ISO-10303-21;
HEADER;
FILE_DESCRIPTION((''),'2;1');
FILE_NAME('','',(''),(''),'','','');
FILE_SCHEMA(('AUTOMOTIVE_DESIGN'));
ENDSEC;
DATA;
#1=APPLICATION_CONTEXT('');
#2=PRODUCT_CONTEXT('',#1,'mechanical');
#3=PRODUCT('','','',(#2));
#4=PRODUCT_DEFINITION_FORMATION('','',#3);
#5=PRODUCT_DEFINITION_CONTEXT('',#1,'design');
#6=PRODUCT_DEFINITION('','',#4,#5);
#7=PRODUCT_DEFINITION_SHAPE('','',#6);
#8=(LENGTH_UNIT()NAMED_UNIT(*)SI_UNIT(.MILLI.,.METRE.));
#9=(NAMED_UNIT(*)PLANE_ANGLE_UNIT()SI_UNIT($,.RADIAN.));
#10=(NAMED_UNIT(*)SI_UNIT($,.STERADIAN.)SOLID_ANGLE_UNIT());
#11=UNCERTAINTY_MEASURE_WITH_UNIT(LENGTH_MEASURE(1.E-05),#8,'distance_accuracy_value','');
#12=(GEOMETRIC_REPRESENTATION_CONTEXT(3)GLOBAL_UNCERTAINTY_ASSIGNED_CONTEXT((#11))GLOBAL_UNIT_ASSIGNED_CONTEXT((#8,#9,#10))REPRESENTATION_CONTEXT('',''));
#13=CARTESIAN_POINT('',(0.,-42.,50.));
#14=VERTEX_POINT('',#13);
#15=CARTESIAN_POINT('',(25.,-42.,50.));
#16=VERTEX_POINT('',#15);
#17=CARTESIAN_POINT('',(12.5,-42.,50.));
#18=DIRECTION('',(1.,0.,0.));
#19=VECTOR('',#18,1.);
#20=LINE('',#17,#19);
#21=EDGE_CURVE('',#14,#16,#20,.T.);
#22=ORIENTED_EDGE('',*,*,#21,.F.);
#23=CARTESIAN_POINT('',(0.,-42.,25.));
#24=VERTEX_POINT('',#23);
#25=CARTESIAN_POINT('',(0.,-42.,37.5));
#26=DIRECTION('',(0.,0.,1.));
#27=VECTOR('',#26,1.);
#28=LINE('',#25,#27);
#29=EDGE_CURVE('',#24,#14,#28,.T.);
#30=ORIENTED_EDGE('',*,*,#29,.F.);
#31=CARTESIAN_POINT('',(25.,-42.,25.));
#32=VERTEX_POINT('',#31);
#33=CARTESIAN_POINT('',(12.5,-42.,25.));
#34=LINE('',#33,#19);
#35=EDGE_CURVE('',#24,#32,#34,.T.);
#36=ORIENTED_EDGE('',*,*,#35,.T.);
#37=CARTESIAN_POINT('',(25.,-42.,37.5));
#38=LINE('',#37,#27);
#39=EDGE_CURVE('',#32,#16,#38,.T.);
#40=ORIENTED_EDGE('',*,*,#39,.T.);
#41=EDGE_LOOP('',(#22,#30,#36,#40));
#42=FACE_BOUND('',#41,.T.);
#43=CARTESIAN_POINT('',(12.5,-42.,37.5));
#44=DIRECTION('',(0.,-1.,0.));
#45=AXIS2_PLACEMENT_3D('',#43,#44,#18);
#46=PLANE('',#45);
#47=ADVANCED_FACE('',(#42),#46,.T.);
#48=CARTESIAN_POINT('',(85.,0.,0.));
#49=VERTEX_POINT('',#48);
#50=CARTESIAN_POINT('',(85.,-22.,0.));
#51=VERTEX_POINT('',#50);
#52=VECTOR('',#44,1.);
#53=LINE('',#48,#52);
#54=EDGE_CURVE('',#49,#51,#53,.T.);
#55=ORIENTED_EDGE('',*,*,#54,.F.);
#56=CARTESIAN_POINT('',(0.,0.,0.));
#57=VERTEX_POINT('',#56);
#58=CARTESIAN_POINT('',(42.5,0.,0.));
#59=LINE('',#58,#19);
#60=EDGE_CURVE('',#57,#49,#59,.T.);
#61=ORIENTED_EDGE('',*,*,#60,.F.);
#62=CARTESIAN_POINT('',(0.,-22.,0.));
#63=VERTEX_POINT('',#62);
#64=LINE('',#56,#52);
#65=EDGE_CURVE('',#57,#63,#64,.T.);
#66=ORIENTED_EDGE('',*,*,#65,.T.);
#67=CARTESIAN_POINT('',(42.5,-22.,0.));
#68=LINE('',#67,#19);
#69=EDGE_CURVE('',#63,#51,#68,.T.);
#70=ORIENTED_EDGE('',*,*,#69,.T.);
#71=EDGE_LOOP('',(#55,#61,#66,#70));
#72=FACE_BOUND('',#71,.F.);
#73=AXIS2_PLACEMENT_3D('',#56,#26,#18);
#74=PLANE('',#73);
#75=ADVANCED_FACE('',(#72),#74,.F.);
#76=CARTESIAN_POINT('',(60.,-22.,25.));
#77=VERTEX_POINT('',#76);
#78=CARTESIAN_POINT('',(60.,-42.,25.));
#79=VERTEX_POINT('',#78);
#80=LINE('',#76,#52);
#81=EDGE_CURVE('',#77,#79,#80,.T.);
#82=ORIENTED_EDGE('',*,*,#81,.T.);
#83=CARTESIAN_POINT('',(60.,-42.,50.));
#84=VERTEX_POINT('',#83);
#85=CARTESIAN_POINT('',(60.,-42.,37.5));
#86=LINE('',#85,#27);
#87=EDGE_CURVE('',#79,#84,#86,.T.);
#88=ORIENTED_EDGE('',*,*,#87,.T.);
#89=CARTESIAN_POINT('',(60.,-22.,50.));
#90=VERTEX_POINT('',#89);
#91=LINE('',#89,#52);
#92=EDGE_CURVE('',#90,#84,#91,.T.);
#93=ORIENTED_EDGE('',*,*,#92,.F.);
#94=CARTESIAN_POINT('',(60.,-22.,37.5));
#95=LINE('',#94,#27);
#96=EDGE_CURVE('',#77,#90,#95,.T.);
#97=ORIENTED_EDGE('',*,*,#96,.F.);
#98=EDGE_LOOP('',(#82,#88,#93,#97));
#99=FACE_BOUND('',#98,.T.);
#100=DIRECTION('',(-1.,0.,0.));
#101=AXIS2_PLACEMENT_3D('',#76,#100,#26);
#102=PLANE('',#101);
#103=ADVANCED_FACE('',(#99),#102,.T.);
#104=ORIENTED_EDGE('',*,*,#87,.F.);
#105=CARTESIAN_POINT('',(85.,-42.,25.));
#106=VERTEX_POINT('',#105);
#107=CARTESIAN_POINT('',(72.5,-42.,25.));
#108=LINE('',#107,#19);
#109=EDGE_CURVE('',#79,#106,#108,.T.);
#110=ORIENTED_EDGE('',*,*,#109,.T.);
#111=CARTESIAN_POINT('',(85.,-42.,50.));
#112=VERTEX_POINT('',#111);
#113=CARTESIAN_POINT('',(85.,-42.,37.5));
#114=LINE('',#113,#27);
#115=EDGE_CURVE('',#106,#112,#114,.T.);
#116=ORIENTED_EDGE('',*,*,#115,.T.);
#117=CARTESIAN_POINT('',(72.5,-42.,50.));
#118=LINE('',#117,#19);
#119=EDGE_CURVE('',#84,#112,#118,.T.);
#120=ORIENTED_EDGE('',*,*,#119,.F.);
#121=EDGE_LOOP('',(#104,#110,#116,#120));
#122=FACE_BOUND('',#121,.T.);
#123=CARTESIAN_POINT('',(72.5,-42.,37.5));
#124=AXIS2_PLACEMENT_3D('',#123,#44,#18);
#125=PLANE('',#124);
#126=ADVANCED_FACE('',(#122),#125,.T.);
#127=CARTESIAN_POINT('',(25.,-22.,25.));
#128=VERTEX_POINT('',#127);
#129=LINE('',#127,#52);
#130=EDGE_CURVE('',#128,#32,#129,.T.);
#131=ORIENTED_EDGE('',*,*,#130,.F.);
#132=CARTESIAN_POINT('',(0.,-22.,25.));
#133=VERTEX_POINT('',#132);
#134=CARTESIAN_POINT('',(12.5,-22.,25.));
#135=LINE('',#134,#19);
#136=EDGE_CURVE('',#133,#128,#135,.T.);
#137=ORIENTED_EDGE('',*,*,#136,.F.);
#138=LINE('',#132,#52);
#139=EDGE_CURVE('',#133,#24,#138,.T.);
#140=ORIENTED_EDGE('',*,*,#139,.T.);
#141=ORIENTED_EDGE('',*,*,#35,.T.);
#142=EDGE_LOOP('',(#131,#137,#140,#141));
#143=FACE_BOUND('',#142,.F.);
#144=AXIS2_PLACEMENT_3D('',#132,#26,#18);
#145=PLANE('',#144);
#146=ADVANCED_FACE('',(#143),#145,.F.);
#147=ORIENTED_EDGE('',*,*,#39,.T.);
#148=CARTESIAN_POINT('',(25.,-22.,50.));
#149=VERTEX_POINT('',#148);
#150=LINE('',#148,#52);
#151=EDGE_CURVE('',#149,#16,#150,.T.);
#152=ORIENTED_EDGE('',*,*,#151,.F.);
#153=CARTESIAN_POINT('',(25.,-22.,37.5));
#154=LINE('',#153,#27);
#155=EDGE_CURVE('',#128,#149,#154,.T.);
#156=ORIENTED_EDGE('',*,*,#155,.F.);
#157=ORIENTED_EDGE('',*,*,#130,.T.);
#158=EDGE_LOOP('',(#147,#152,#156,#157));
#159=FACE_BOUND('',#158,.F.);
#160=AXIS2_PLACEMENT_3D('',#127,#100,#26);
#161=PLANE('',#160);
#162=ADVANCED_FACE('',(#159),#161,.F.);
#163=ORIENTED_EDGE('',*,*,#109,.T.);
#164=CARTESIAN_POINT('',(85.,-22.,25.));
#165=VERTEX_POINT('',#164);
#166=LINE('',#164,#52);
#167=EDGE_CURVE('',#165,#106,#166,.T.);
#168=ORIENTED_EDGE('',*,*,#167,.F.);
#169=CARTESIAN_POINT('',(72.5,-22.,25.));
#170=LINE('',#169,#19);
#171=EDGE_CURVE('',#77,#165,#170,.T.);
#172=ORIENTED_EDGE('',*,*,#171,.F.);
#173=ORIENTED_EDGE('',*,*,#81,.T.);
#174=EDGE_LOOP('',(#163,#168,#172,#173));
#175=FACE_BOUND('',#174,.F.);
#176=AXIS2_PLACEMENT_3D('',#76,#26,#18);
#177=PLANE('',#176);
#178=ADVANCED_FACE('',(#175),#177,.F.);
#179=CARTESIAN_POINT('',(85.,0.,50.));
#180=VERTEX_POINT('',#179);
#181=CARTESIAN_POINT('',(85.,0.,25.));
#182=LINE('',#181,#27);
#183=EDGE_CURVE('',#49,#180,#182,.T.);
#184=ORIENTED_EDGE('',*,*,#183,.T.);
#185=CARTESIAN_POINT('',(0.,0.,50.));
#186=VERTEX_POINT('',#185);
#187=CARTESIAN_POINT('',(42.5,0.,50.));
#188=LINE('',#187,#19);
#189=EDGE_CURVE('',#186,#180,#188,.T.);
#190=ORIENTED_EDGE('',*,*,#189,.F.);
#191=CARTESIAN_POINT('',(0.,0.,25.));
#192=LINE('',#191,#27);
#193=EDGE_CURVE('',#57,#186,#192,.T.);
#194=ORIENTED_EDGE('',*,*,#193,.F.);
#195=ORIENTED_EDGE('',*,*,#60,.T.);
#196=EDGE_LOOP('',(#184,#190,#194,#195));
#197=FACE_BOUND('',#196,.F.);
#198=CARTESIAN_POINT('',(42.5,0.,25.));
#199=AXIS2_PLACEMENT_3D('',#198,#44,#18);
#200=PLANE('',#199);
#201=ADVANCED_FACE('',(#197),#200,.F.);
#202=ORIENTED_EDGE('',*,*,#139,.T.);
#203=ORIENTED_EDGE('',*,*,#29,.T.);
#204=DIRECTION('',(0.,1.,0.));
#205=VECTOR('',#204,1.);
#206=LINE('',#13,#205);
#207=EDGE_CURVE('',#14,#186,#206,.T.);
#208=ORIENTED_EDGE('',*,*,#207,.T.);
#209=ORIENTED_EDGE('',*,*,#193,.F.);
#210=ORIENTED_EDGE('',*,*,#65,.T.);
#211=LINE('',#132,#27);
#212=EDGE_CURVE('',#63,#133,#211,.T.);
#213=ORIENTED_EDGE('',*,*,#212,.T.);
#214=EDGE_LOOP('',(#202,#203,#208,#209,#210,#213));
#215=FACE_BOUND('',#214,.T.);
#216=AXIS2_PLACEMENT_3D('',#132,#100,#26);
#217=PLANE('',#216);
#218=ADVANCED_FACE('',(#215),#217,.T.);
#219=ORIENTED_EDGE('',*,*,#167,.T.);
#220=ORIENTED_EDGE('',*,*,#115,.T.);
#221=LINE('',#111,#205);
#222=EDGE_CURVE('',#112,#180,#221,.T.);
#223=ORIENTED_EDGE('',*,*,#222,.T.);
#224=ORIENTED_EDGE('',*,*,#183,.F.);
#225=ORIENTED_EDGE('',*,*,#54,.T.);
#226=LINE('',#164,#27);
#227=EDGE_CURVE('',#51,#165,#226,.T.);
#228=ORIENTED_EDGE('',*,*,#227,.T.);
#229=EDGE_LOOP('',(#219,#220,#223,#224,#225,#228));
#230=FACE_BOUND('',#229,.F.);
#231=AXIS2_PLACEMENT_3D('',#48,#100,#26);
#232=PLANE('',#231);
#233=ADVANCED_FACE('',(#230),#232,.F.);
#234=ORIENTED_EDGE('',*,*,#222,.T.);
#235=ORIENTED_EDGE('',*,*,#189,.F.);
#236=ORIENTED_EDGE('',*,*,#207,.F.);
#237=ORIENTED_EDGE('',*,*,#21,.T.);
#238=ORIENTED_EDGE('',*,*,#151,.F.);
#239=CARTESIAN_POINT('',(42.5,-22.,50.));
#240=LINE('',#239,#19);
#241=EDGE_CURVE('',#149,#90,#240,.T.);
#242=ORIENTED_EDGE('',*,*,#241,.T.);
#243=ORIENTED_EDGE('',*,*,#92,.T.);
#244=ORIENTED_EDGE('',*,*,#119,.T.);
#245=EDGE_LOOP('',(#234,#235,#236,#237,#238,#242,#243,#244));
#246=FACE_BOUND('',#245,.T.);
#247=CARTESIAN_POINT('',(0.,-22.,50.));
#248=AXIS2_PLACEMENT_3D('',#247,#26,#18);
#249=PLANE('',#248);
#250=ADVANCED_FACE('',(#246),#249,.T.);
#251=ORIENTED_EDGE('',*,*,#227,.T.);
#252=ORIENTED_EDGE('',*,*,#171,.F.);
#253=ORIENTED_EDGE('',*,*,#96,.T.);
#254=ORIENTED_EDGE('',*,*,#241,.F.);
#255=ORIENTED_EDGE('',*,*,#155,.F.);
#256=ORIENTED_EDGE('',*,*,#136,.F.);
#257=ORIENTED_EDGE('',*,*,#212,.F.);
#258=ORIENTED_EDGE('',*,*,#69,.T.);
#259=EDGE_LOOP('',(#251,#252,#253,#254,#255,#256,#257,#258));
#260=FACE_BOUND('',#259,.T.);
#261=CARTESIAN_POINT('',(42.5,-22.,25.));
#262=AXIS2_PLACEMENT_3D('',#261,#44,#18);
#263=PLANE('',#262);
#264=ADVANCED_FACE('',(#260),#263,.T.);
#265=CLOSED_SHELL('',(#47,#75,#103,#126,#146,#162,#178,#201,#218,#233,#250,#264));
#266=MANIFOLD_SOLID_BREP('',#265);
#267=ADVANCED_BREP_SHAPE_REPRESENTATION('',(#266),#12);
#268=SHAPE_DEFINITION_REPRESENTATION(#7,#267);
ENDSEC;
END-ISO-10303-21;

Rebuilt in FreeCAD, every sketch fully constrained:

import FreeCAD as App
import Part
import Sketcher
Q = App.Units.Quantity

doc = App.newDocument("Part")
params = doc.addObject("Spreadsheet::Sheet", "Params")
for row, (alias, value) in enumerate([
    ("sketch1_width", "85 mm"),
    ("sketch1_height", "50 mm"),
    ("pad1_length", "22 mm"),
    ("sketch2_width", "25 mm"),
    ("pad2_length", "20 mm"),
    ("sketch3_width", "25 mm"),
    ("pad3_length", "20 mm"),
], start=1):
    params.set(f"A{row}", alias)
    params.set(f"B{row}", "=" + value)
    params.setAlias(f"B{row}", alias)

body = doc.addObject("PartDesign::Body", "Body")

# Sketch on XZ plane
sketch1 = body.newObject("Sketcher::SketchObject", "Sketch")
sketch1.AttachmentSupport = (doc.getObject("XZ_Plane"), [""])
sketch1.MapMode = "FlatFace"
sketch1.addGeometry([
    Part.LineSegment(App.Vector(0, 50, 0), App.Vector(0, 0, 0)),
    Part.LineSegment(App.Vector(0, 0, 0), App.Vector(85, 0, 0)),
    Part.LineSegment(App.Vector(85, 0, 0), App.Vector(85, 50, 0)),
    Part.LineSegment(App.Vector(85, 50, 0), App.Vector(0, 50, 0)),
], False)
sketch1.addConstraint([
    Sketcher.Constraint("Coincident", 0, 2, 1, 1),
    Sketcher.Constraint("Coincident", 1, 2, 2, 1),
    Sketcher.Constraint("Coincident", 2, 2, 3, 1),
    Sketcher.Constraint("Coincident", 3, 2, 0, 1),
    Sketcher.Constraint("Vertical", 0),
    Sketcher.Constraint("Horizontal", 1),
    Sketcher.Constraint("Vertical", 2),
    Sketcher.Constraint("Horizontal", 3),
    Sketcher.Constraint("Coincident", 0, 2, -1, 1),
    Sketcher.Constraint("DistanceX", 1, 1, 1, 2, Q("85 mm")),
    Sketcher.Constraint("DistanceY", 0, 2, 0, 1, Q("50 mm")),
])
sketch1.setExpression("Constraints[9]", "Params.sketch1_width")
sketch1.setExpression("Constraints[10]", "Params.sketch1_height")
pad1 = body.newObject("PartDesign::Pad", "Pad")
pad1.Profile = sketch1
pad1.setExpression("Length", "Params.pad1_length")

# Sketch on XZ plane
sketch2 = body.newObject("Sketcher::SketchObject", "Sketch001")
sketch2.AttachmentSupport = (doc.getObject("XZ_Plane"), [""])
sketch2.MapMode = "FlatFace"
sketch2.AttachmentOffset = App.Placement(App.Vector(0, 0, 22), App.Rotation())
sketch2.addGeometry([
    Part.LineSegment(App.Vector(0, 50, 0), App.Vector(0, 25, 0)),
    Part.LineSegment(App.Vector(0, 25, 0), App.Vector(25, 25, 0)),
    Part.LineSegment(App.Vector(25, 25, 0), App.Vector(25, 50, 0)),
    Part.LineSegment(App.Vector(25, 50, 0), App.Vector(0, 50, 0)),
], False)
sketch2.addConstraint([
    Sketcher.Constraint("Coincident", 0, 2, 1, 1),
    Sketcher.Constraint("Coincident", 1, 2, 2, 1),
    Sketcher.Constraint("Coincident", 2, 2, 3, 1),
    Sketcher.Constraint("Coincident", 3, 2, 0, 1),
    Sketcher.Constraint("Vertical", 0),
    Sketcher.Constraint("Horizontal", 1),
    Sketcher.Constraint("Vertical", 2),
    Sketcher.Constraint("Horizontal", 3),
    Sketcher.Constraint("PointOnObject", 0, 2, -2),
    Sketcher.Constraint("Equal", 3, 0),
    Sketcher.Constraint("DistanceX", 1, 1, 1, 2, Q("25 mm")),
    Sketcher.Constraint("DistanceY", -1, 1, 0, 2, Q("25 mm")),
])
sketch2.setExpression("Constraints[10]", "Params.sketch2_width")
pad2 = body.newObject("PartDesign::Pad", "Pad001")
pad2.Profile = sketch2
pad2.setExpression("Length", "Params.pad2_length")

# Sketch on XZ plane
sketch3 = body.newObject("Sketcher::SketchObject", "Sketch002")
sketch3.AttachmentSupport = (doc.getObject("XZ_Plane"), [""])
sketch3.MapMode = "FlatFace"
sketch3.AttachmentOffset = App.Placement(App.Vector(0, 0, 22), App.Rotation())
sketch3.addGeometry([
    Part.LineSegment(App.Vector(0, 50, 0), App.Vector(0, 25, 0)),  # 0
    Part.LineSegment(App.Vector(0, 25, 0), App.Vector(25, 25, 0)),  # 1
    Part.LineSegment(App.Vector(25, 25, 0), App.Vector(25, 50, 0)),  # 2
    Part.LineSegment(App.Vector(25, 50, 0), App.Vector(0, 50, 0)),  # 3
    Part.LineSegment(App.Vector(60, 50, 0), App.Vector(60, 25, 0)),  # 4
    Part.LineSegment(App.Vector(60, 25, 0), App.Vector(85, 25, 0)),  # 5
    Part.LineSegment(App.Vector(85, 25, 0), App.Vector(85, 50, 0)),  # 6
    Part.LineSegment(App.Vector(85, 50, 0), App.Vector(60, 50, 0)),  # 7
], False)
sketch3.addConstraint([
    Sketcher.Constraint("Coincident", 0, 2, 1, 1),
    Sketcher.Constraint("Coincident", 1, 2, 2, 1),
    Sketcher.Constraint("Coincident", 2, 2, 3, 1),
    Sketcher.Constraint("Coincident", 3, 2, 0, 1),
    Sketcher.Constraint("Coincident", 4, 2, 5, 1),
    Sketcher.Constraint("Coincident", 5, 2, 6, 1),
    Sketcher.Constraint("Coincident", 6, 2, 7, 1),
    Sketcher.Constraint("Coincident", 7, 2, 4, 1),
    Sketcher.Constraint("Vertical", 0),
    Sketcher.Constraint("Horizontal", 1),
    Sketcher.Constraint("Vertical", 2),
    Sketcher.Constraint("Horizontal", 3),
    Sketcher.Constraint("Vertical", 4),
    Sketcher.Constraint("Horizontal", 5),
    Sketcher.Constraint("Vertical", 6),
    Sketcher.Constraint("Horizontal", 7),
    Sketcher.Constraint("PointOnObject", 0, 2, -2),
    Sketcher.Constraint("Horizontal", 1, 2, 4, 2),
    Sketcher.Constraint("Horizontal", 3, 2, 6, 2),
    Sketcher.Constraint("Equal", 3, 5),
    Sketcher.Constraint("Equal", 7, 0),
    Sketcher.Constraint("DistanceX", 1, 1, 1, 2, Q("25 mm")),
    Sketcher.Constraint("DistanceY", -1, 1, 0, 2, Q("25 mm")),
    Sketcher.Constraint("DistanceX", -1, 1, 4, 2, Q("60 mm")),
])
sketch3.setExpression("Constraints[21]", "Params.sketch3_width")
pad3 = body.newObject("PartDesign::Pad", "Pad002")
pad3.Profile = sketch3
pad3.setExpression("Length", "Params.pad3_length")

doc.recompute()
